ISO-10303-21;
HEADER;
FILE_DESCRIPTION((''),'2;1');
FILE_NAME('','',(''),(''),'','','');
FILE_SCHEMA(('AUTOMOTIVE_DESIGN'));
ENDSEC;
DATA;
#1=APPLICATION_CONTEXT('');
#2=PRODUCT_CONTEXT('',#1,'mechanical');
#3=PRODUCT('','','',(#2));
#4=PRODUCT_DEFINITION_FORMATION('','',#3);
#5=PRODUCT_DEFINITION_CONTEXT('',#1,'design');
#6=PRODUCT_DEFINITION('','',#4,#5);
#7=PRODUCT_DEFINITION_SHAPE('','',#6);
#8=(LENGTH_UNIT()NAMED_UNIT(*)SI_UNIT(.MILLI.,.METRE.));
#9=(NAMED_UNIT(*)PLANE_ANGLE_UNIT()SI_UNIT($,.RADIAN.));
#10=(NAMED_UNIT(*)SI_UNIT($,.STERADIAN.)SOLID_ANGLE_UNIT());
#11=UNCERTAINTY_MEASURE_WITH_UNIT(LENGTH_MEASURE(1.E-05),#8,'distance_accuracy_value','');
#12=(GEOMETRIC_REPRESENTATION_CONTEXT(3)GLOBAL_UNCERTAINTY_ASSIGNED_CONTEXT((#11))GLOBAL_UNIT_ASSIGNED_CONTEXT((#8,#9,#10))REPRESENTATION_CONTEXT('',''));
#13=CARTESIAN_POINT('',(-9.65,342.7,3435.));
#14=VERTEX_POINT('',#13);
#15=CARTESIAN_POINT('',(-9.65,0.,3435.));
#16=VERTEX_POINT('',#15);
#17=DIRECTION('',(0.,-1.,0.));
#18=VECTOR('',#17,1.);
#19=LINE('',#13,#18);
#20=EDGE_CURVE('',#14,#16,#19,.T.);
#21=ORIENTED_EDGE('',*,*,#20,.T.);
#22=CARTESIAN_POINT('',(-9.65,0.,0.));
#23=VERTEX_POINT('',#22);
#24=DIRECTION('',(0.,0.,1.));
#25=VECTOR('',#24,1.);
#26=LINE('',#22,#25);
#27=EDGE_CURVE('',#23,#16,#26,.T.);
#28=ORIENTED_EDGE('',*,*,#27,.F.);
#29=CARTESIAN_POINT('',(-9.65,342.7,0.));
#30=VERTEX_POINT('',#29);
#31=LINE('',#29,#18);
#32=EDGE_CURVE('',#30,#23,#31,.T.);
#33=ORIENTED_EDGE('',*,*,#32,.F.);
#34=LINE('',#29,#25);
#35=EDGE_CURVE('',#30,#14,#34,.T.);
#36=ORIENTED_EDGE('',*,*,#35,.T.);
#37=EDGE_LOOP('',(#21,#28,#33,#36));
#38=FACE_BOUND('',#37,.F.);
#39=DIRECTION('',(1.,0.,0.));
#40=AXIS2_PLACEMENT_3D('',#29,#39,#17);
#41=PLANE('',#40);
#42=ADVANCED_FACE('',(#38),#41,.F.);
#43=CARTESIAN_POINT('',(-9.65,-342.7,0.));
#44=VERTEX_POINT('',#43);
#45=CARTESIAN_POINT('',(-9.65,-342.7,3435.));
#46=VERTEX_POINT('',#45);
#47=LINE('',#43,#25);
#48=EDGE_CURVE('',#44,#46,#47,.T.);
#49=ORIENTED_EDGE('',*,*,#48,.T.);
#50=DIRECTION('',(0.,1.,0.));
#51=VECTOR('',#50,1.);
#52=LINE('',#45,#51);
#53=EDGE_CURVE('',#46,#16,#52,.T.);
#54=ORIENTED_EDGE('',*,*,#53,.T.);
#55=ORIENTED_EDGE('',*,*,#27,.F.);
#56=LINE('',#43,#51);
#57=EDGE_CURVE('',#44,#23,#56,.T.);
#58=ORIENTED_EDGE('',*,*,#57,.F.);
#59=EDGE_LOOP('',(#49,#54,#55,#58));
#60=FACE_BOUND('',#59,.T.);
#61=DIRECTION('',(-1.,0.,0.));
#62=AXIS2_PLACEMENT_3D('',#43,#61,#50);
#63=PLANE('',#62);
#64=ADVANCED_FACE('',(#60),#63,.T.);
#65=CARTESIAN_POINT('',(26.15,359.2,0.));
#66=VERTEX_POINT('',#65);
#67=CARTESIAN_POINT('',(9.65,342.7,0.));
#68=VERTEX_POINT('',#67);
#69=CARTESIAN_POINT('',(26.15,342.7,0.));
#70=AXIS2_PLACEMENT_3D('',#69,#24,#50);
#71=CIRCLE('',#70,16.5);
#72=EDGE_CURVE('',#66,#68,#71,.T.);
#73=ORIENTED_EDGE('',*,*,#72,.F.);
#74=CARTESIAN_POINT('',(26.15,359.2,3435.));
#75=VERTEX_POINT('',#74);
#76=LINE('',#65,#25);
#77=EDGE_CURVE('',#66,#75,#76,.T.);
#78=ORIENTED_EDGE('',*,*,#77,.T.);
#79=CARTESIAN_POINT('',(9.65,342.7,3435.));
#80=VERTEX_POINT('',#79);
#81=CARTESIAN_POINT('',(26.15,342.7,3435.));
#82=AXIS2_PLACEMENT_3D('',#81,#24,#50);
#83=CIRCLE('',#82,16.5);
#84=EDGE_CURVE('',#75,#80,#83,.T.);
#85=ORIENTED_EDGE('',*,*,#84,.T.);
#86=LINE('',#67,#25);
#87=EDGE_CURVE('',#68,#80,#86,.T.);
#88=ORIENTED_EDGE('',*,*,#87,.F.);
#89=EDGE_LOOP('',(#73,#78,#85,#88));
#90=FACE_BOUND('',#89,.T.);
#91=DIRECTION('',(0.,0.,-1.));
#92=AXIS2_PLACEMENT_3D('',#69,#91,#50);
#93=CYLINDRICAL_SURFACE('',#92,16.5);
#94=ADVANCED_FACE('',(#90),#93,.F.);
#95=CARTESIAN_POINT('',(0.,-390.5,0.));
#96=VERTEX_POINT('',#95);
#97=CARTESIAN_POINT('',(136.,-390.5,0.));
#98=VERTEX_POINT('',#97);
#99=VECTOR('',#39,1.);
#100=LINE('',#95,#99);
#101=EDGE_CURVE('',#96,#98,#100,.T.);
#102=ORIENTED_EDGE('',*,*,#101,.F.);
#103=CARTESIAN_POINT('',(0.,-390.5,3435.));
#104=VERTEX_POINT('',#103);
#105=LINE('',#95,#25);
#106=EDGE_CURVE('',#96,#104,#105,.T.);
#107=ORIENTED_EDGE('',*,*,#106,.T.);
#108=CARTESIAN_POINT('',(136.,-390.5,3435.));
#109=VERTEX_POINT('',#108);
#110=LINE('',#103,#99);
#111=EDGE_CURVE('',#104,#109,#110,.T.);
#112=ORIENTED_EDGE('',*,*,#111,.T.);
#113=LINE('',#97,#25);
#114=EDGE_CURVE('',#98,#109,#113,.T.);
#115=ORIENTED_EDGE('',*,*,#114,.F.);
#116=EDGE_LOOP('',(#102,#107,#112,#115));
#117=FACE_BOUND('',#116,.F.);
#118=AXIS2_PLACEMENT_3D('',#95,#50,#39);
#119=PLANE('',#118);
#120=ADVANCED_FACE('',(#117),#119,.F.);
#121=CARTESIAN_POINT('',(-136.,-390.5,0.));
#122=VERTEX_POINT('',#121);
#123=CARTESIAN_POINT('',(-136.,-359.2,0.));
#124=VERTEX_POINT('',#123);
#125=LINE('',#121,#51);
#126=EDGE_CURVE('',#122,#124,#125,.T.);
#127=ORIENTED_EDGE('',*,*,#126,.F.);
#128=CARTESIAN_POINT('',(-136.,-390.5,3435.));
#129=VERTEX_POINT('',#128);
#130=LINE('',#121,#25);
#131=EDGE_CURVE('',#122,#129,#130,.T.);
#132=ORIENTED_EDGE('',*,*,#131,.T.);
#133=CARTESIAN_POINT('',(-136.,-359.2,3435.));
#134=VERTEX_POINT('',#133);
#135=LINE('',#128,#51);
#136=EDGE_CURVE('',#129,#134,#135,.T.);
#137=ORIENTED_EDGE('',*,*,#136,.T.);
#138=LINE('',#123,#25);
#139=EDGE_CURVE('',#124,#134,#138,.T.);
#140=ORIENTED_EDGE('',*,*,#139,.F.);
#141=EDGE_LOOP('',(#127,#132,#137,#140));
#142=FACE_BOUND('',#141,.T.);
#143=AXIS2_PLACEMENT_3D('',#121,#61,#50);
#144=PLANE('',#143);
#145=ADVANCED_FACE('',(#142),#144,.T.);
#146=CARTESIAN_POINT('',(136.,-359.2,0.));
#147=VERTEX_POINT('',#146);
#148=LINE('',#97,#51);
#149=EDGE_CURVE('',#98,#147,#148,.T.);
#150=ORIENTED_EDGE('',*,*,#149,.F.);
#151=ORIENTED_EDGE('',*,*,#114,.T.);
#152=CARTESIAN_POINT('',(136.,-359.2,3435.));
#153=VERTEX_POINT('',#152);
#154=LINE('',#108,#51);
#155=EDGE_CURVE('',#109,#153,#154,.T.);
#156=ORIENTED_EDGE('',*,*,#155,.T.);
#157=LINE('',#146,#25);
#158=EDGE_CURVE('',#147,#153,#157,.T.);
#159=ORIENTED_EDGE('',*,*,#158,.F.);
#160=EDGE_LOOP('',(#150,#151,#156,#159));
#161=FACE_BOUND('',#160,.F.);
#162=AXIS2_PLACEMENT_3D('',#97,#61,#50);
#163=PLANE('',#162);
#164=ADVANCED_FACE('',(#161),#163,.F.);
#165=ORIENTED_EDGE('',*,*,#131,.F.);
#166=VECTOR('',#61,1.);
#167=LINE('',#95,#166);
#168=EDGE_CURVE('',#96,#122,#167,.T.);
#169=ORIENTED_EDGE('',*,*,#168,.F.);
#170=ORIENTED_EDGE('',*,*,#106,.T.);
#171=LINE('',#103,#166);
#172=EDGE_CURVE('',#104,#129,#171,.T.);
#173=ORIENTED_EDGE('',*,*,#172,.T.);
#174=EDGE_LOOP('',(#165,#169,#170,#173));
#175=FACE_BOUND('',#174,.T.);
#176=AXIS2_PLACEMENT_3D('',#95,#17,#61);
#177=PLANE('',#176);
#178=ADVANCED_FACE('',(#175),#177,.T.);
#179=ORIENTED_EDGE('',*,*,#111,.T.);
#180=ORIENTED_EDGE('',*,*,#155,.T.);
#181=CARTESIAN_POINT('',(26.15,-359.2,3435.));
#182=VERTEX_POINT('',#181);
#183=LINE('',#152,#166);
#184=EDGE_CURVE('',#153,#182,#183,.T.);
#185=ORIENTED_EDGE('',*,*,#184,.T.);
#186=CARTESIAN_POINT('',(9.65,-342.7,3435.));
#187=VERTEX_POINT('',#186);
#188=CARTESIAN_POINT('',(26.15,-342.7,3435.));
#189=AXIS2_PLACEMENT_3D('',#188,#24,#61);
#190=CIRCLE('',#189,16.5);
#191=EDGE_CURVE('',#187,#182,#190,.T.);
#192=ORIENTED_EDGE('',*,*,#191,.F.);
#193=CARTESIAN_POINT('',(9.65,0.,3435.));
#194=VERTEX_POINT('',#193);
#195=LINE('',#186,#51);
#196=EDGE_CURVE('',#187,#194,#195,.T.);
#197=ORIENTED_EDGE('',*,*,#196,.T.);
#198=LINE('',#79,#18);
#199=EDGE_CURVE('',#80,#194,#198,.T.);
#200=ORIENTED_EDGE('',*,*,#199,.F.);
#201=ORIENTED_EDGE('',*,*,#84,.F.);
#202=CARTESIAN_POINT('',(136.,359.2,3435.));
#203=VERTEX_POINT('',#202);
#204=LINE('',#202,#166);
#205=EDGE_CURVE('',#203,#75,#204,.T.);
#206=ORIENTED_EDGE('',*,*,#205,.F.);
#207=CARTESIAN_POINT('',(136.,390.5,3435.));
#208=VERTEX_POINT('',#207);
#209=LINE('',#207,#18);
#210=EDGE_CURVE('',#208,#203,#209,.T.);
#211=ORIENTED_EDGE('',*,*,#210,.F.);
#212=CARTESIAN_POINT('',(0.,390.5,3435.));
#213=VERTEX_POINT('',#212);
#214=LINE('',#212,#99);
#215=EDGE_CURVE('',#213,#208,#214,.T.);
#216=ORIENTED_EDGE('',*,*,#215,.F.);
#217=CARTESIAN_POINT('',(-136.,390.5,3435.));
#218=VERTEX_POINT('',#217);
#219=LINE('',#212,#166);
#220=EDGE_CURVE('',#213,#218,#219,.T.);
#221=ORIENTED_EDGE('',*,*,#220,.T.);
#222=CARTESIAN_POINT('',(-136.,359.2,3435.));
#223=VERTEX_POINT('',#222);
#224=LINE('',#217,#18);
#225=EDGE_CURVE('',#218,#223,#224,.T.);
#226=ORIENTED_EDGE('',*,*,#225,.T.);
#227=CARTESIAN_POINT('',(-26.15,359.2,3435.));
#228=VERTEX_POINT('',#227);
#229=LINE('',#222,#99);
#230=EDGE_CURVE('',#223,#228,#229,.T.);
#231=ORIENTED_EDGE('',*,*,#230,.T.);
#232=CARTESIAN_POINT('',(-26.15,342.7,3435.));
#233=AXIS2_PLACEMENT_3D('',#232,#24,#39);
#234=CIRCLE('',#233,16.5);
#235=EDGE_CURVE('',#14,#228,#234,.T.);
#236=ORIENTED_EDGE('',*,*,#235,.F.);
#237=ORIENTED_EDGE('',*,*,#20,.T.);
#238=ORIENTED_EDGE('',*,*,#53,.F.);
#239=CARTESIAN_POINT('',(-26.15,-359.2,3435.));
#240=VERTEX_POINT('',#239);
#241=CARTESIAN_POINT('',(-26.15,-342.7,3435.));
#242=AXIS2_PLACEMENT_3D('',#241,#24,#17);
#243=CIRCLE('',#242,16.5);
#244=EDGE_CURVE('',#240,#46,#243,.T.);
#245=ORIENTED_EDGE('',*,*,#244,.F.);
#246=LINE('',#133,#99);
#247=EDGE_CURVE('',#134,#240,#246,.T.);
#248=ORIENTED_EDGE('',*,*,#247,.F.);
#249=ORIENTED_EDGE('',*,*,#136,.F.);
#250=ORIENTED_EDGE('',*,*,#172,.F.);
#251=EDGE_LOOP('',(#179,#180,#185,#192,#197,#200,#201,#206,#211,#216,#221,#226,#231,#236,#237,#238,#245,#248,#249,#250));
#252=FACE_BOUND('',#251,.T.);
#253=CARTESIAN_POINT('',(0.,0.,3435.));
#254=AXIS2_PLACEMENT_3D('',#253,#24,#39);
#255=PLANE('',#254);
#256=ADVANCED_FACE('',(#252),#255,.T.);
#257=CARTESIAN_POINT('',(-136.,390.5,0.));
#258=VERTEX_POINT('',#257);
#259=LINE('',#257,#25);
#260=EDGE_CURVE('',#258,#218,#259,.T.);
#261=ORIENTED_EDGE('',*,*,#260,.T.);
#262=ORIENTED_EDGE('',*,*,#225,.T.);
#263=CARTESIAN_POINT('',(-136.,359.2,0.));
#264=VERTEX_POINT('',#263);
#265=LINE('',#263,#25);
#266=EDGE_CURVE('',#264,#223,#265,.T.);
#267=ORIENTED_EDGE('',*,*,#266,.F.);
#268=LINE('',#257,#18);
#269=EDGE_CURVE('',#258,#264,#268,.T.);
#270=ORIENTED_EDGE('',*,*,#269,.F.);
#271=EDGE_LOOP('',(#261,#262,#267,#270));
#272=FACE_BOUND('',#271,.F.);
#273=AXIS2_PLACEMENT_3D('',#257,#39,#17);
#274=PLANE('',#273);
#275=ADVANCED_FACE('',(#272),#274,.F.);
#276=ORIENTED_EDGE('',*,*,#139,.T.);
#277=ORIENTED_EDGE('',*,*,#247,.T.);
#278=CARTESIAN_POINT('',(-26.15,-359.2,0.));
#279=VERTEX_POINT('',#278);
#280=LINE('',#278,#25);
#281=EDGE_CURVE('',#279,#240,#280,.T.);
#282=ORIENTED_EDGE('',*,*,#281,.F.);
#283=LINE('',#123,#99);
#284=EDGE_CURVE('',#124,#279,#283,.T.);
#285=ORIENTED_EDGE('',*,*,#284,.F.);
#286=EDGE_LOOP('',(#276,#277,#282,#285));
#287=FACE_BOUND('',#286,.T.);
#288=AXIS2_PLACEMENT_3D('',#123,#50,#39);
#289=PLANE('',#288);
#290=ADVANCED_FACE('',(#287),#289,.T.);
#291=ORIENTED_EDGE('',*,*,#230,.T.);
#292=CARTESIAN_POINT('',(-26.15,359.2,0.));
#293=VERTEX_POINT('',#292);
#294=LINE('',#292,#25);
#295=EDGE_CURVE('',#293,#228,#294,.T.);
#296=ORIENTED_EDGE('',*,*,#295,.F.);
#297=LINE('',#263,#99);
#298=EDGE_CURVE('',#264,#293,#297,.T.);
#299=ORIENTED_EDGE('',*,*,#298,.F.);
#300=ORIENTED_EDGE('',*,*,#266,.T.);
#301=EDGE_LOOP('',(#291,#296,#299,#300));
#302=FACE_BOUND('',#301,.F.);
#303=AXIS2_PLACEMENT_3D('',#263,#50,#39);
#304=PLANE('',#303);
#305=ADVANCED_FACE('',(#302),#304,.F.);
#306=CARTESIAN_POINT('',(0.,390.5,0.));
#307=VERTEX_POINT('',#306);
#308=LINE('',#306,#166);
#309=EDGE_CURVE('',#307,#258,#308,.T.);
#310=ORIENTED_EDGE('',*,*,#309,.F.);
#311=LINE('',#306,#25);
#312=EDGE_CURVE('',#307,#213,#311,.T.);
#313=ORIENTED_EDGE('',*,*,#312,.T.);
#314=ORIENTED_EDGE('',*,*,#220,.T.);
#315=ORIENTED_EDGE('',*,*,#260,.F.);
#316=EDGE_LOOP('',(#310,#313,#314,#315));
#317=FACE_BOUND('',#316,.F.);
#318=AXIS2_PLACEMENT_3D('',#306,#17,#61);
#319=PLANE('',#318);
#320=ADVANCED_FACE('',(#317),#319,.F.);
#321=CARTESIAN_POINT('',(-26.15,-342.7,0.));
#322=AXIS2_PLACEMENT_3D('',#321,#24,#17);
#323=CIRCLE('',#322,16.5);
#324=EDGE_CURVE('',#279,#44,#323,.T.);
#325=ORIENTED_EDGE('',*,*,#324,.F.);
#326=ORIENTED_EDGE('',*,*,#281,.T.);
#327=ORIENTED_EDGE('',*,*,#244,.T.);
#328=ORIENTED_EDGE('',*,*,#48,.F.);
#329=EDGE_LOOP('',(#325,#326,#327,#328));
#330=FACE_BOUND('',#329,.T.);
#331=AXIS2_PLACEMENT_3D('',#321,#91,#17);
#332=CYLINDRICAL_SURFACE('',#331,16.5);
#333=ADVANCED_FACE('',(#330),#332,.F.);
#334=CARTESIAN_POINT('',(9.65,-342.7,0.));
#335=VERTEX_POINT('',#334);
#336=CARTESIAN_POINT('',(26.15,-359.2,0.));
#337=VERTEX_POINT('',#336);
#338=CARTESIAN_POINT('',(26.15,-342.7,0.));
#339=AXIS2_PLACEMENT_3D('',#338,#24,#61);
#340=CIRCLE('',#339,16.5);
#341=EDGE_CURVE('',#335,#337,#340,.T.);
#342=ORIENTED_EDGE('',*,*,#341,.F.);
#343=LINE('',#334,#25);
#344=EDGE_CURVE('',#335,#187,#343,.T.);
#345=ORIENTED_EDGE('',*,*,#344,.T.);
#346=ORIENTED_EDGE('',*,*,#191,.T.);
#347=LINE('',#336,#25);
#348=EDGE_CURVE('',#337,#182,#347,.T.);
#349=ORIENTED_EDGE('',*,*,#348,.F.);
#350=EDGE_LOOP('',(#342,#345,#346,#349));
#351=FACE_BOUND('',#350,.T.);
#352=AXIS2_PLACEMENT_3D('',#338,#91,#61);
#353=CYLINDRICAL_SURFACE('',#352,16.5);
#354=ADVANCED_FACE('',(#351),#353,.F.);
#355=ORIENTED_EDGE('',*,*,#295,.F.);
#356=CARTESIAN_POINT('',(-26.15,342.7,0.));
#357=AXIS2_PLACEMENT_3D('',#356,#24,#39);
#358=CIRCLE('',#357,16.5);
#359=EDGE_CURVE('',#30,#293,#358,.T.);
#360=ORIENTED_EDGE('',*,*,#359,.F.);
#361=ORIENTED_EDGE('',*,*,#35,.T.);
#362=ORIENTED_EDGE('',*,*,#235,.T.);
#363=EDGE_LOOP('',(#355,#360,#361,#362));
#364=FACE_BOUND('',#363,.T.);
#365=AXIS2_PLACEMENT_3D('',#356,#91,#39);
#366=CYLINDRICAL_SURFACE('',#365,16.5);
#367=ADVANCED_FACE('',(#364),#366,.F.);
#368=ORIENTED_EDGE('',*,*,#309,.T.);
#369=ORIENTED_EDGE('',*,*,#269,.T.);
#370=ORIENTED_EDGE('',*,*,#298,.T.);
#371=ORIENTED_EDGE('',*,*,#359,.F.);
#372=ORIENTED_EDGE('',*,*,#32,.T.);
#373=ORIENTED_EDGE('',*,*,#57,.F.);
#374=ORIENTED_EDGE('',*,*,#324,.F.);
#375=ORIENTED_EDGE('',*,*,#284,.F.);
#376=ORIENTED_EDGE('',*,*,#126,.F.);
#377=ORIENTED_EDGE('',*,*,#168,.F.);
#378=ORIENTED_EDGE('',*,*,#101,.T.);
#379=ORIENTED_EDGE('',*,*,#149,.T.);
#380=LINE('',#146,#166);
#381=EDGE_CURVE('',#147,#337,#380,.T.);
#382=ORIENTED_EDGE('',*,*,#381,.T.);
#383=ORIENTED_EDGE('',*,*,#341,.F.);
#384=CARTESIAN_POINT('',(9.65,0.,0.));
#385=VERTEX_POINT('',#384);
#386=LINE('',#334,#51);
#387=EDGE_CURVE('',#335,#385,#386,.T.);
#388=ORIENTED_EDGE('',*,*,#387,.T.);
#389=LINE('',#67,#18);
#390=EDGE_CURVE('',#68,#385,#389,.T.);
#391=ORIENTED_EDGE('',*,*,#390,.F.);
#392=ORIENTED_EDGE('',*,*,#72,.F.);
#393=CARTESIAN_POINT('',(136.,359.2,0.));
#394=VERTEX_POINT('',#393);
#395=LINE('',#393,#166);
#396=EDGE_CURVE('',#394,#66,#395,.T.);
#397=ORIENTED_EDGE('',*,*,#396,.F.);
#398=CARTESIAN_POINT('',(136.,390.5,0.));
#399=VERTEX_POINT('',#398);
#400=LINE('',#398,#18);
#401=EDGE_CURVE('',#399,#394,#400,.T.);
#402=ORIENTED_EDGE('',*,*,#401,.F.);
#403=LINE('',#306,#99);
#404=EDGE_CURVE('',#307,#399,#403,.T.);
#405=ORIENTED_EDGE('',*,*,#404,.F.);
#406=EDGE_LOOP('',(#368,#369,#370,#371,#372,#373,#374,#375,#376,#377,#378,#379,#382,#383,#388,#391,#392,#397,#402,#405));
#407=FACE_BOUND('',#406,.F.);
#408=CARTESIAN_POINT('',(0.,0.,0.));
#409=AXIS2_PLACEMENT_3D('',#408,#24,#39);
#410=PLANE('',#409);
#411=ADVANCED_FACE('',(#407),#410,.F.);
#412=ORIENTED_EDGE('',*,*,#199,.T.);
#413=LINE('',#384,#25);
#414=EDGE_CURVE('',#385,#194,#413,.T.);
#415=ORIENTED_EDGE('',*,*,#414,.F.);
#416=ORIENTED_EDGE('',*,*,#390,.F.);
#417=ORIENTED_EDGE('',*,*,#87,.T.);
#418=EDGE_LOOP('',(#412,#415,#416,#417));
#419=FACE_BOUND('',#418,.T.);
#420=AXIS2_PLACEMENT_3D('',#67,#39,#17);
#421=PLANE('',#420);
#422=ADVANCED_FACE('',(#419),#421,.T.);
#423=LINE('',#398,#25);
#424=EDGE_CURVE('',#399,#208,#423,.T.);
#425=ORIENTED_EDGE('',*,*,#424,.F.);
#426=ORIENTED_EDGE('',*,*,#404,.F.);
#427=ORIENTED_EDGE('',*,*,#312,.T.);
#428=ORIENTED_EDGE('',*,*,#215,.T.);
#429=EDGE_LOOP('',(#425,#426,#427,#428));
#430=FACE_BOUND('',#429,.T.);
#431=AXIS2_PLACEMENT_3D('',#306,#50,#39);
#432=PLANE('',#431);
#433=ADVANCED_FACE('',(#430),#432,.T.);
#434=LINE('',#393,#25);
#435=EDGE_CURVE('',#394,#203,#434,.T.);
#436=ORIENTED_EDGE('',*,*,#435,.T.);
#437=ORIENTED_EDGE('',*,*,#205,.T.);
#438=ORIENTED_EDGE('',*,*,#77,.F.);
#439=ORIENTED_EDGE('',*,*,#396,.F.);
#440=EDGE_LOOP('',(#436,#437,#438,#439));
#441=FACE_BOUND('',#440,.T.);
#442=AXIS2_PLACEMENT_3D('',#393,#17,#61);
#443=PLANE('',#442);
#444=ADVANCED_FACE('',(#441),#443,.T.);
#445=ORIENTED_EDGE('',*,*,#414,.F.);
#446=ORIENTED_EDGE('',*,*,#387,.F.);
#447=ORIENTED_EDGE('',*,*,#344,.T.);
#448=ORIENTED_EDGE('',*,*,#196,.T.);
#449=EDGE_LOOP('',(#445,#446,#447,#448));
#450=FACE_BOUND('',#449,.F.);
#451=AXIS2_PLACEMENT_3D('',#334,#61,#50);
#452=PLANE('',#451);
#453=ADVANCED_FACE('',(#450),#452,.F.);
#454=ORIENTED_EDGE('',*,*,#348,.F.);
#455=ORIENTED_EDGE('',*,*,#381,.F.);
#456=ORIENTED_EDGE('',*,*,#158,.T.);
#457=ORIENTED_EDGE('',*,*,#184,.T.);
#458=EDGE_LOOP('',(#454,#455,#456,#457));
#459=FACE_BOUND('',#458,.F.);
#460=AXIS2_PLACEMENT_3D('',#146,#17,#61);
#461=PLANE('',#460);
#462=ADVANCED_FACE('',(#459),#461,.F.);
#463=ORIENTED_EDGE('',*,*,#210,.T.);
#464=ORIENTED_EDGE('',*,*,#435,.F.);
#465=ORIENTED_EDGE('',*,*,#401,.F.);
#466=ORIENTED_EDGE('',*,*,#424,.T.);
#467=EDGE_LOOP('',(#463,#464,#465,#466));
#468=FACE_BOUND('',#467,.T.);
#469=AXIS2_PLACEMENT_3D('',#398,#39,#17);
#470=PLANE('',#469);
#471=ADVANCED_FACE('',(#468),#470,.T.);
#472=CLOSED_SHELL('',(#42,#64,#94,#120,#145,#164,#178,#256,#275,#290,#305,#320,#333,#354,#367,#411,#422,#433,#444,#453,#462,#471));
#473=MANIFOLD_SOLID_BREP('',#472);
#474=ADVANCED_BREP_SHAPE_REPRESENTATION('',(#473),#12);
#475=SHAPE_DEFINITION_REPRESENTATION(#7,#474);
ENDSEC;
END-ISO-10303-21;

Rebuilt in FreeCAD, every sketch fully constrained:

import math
import FreeCAD as App
import Part
import Sketcher

V = App.Vector

doc = App.newDocument("Part")
params = doc.addObject("Spreadsheet::Sheet", "Params")
for row, (alias, value) in enumerate([
    ("sketch1_radius", "16.5 mm"),
    ("sketch1_height", "31.3 mm"),
    ("pad1_length", "3435 mm"),
], start=1):
    params.set(f"A{row}", alias)
    params.set(f"B{row}", "=" + value)
    params.setAlias(f"B{row}", alias)

body = doc.addObject("PartDesign::Body", "Body")

# Sketch on XY plane
sketch1 = body.newObject("Sketcher::SketchObject", "Sketch")
sketch1.AttachmentSupport = (doc.getObject("XY_Plane"), [""])
sketch1.MapMode = "FlatFace"
sketch1.addGeometry([
    Part.LineSegment(V(-136, -359, 0), V(-136, -390, 0)),  # 0
    Part.LineSegment(V(-136, -390, 0), V(136, -390, 0)),  # 1
    Part.LineSegment(V(136, -390, 0), V(136, -359, 0)),  # 2
    Part.LineSegment(V(136, -359, 0), V(26, -359, 0)),  # 3
    Part.ArcOfCircle(Part.Circle(V(26, -343, 0), V(0, 0, 1), 16), math.radians(180), math.radians(270)),  # 4
    Part.LineSegment(V(10, -343, 0), V(10, 343, 0)),  # 5
    Part.ArcOfCircle(Part.Circle(V(26, 343, 0), V(0, 0, 1), 16), math.radians(90), math.radians(180)),  # 6
    Part.LineSegment(V(26, 359, 0), V(136, 359, 0)),  # 7
    Part.LineSegment(V(136, 359, 0), V(136, 390, 0)),  # 8
    Part.LineSegment(V(136, 390, 0), V(-136, 390, 0)),  # 9
    Part.LineSegment(V(-136, 390, 0), V(-136, 359, 0)),  # 10
    Part.LineSegment(V(-136, 359, 0), V(-26, 359, 0)),  # 11
    Part.ArcOfCircle(Part.Circle(V(-26, 343, 0), V(0, 0, 1), 16), math.radians(0), math.radians(90)),  # 12
    Part.LineSegment(V(-10, 343, 0), V(-10, -343, 0)),  # 13
    Part.ArcOfCircle(Part.Circle(V(-26, -343, 0), V(0, 0, 1), 16), math.radians(-90), math.radians(0)),  # 14
    Part.LineSegment(V(-26, -359, 0), V(-136, -359, 0)),  # 15
], False)
sketch1.addConstraint([
    Sketcher.Constraint("Coincident", 0, 2, 1, 1),
    Sketcher.Constraint("Coincident", 1, 2, 2, 1),
    Sketcher.Constraint("Coincident", 2, 2, 3, 1),
    Sketcher.Constraint("Tangent", 3, 2, 4, 2),
    Sketcher.Constraint("Tangent", 4, 1, 5, 1),
    Sketcher.Constraint("Tangent", 5, 2, 6, 2),
    Sketcher.Constraint("Tangent", 6, 1, 7, 1),
    Sketcher.Constraint("Coincident", 7, 2, 8, 1),
    Sketcher.Constraint("Coincident", 8, 2, 9, 1),
    Sketcher.Constraint("Coincident", 9, 2, 10, 1),
    Sketcher.Constraint("Coincident", 10, 2, 11, 1),
    Sketcher.Constraint("Tangent", 11, 2, 12, 2),
    Sketcher.Constraint("Tangent", 12, 1, 13, 1),
    Sketcher.Constraint("Tangent", 13, 2, 14, 2),
    Sketcher.Constraint("Tangent", 14, 1, 15, 1),
    Sketcher.Constraint("Coincident", 15, 2, 0, 1),
    Sketcher.Constraint("Vertical", 0),
    Sketcher.Constraint("Horizontal", 1),
    Sketcher.Constraint("Vertical", 2),
    Sketcher.Constraint("Horizontal", 3),
    Sketcher.Constraint("Vertical", 5),
    Sketcher.Constraint("Horizontal", 7),
    Sketcher.Constraint("Vertical", 8),
    Sketcher.Constraint("Horizontal", 9),
    Sketcher.Constraint("Vertical", 10),
    Sketcher.Constraint("Horizontal", 11),
    Sketcher.Constraint("Vertical", 13),
    Sketcher.Constraint("Horizontal", 15),
    Sketcher.Constraint("Equal", 4, 6),
    Sketcher.Constraint("Equal", 6, 12),
    Sketcher.Constraint("Equal", 12, 14),
    Sketcher.Constraint("Symmetric", 4, 3, 12, 3, -1, 1),
    Sketcher.Constraint("Symmetric", 0, 2, 8, 2, -1, 1),
    Sketcher.Constraint("Symmetric", 7, 2, 10, 2, -2),
    Sketcher.Constraint("Symmetric", 2, 2, 15, 2, -2),
    Sketcher.Constraint("Radius", 4, 16.5),
    Sketcher.Constraint("DistanceY", 0, 2, 0, 1, 31.3),
    Sketcher.Constraint("DistanceX", 0, 2, -1, 1, 136.0),
    Sketcher.Constraint("DistanceY", 0, 2, -1, 1, 390.5),
    Sketcher.Constraint("DistanceX", -1, 1, 4, 1, 9.65),
])
sketch1.setExpression("Constraints[35]", "Params.sketch1_radius")
sketch1.setExpression("Constraints[36]", "Params.sketch1_height")
pad1 = body.newObject("PartDesign::Pad", "Pad")
pad1.Profile = sketch1
pad1.setExpression("Length", "Params.pad1_length")

doc.recompute()
